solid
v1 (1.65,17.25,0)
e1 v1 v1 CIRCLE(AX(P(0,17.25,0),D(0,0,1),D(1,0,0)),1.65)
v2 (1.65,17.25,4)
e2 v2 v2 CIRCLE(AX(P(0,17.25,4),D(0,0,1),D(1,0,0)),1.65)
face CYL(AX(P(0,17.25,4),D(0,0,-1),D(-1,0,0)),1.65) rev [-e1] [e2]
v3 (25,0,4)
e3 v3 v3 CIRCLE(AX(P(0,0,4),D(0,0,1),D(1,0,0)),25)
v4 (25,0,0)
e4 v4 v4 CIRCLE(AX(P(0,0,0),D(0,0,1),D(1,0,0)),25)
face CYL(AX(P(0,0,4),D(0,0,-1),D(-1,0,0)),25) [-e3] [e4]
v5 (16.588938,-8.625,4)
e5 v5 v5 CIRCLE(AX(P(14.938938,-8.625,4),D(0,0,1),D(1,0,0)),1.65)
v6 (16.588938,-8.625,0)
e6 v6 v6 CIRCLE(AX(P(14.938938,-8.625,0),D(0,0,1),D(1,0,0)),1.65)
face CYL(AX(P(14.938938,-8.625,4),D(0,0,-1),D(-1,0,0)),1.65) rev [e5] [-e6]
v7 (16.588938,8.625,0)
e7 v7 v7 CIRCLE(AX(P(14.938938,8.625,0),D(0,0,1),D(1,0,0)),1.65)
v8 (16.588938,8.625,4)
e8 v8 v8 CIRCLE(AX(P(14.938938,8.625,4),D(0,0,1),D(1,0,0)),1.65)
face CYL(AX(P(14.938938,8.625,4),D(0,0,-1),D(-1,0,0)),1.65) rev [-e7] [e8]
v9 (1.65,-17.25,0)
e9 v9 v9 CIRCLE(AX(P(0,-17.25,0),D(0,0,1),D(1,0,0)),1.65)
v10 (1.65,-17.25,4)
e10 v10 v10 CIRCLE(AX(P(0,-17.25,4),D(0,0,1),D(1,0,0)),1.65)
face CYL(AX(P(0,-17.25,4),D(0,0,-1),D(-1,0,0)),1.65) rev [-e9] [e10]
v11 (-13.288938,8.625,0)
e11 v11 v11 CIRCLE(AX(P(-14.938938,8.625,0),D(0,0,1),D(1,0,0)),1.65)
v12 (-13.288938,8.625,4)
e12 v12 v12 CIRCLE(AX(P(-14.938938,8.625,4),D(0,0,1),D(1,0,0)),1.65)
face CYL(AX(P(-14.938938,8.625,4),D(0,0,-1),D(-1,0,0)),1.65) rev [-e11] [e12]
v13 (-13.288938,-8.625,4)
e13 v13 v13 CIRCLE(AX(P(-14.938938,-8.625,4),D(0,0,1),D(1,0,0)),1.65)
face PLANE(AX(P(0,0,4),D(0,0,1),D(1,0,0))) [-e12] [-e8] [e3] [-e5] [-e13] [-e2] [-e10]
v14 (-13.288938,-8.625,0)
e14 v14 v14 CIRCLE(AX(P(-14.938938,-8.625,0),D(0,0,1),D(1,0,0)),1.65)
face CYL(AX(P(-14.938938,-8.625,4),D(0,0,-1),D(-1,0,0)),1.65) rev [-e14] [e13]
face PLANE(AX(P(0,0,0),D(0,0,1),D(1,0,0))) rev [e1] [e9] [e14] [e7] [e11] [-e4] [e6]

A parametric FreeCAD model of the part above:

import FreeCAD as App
import Part
import Sketcher

doc = App.newDocument("Part")
params = doc.addObject("Spreadsheet::Sheet", "Params")
for row, (alias, value) in enumerate([
    ("sketch1_diameter", "50 mm"),
    ("sketch1_diameter2", "3.3 mm"),
    ("pad1_length", "4 mm"),
], start=1):
    params.set(f"A{row}", alias)
    params.set(f"B{row}", "=" + value)
    params.setAlias(f"B{row}", alias)

body = doc.addObject("PartDesign::Body", "Body")

sketch1 = body.newObject("Sketcher::SketchObject", "Sketch")
sketch1.AttachmentSupport = (doc.getObject("XY_Plane"), [""])
sketch1.MapMode = "FlatFace"
sketch1.addGeometry(Part.Circle(App.Vector(0, 0, 0), App.Vector(0, 0, 1), 25), False)
sketch1.addGeometry(Part.Circle(App.Vector(-14.938938, -8.625, 0), App.Vector(0, 0, 1), 1.65), False)
sketch1.addGeometry(Part.Circle(App.Vector(0, -17.25, 0), App.Vector(0, 0, 1), 1.65), False)
sketch1.addGeometry(Part.Circle(App.Vector(14.938938, -8.625, 0), App.Vector(0, 0, 1), 1.65), False)
sketch1.addGeometry(Part.Circle(App.Vector(-14.938938, 8.625, 0), App.Vector(0, 0, 1), 1.65), False)
sketch1.addGeometry(Part.Circle(App.Vector(14.938938, 8.625, 0), App.Vector(0, 0, 1), 1.65), False)
sketch1.addGeometry(Part.Circle(App.Vector(0, 17.25, 0), App.Vector(0, 0, 1), 1.65), False)
sketch1.addConstraint(Sketcher.Constraint("Coincident", 0, 3, -1, 1))
sketch1.addConstraint(Sketcher.Constraint("Equal", 1, 2))
sketch1.addConstraint(Sketcher.Constraint("Equal", 2, 3))
sketch1.addConstraint(Sketcher.Constraint("Equal", 3, 4))
sketch1.addConstraint(Sketcher.Constraint("Equal", 4, 5))
sketch1.addConstraint(Sketcher.Constraint("Equal", 5, 6))
sketch1.addConstraint(Sketcher.Constraint("Symmetric", 3, 3, 4, 3, -1, 1))
sketch1.addConstraint(Sketcher.Constraint("Symmetric", 1, 3, 5, 3, -1, 1))
sketch1.addConstraint(Sketcher.Constraint("Symmetric", 2, 3, 6, 3, -1, 1))
sketch1.addConstraint(Sketcher.Constraint("Symmetric", 1, 3, 3, 3, -2))
sketch1.addConstraint(Sketcher.Constraint("PointOnObject", 2, 3, -2))
sketch1.addConstraint(Sketcher.Constraint("Diameter", 0, 50.0))
sketch1.addConstraint(Sketcher.Constraint("Diameter", 1, 3.3))
sketch1.addConstraint(Sketcher.Constraint("DistanceY", 2, 3, -1, 1, 17.25))
sketch1.addConstraint(Sketcher.Constraint("DistanceY", 1, 3, 4, 3, 17.25))
sketch1.addConstraint(Sketcher.Constraint("DistanceX", 1, 3, -1, 1, 14.938938))
sketch1.setExpression("Constraints[11]", "Params.sketch1_diameter")
sketch1.setExpression("Constraints[12]", "Params.sketch1_diameter2")
pad1 = body.newObject("PartDesign::Pad", "Pad")
pad1.Profile = sketch1
pad1.setExpression("Length", "Params.pad1_length")

doc.recompute()
